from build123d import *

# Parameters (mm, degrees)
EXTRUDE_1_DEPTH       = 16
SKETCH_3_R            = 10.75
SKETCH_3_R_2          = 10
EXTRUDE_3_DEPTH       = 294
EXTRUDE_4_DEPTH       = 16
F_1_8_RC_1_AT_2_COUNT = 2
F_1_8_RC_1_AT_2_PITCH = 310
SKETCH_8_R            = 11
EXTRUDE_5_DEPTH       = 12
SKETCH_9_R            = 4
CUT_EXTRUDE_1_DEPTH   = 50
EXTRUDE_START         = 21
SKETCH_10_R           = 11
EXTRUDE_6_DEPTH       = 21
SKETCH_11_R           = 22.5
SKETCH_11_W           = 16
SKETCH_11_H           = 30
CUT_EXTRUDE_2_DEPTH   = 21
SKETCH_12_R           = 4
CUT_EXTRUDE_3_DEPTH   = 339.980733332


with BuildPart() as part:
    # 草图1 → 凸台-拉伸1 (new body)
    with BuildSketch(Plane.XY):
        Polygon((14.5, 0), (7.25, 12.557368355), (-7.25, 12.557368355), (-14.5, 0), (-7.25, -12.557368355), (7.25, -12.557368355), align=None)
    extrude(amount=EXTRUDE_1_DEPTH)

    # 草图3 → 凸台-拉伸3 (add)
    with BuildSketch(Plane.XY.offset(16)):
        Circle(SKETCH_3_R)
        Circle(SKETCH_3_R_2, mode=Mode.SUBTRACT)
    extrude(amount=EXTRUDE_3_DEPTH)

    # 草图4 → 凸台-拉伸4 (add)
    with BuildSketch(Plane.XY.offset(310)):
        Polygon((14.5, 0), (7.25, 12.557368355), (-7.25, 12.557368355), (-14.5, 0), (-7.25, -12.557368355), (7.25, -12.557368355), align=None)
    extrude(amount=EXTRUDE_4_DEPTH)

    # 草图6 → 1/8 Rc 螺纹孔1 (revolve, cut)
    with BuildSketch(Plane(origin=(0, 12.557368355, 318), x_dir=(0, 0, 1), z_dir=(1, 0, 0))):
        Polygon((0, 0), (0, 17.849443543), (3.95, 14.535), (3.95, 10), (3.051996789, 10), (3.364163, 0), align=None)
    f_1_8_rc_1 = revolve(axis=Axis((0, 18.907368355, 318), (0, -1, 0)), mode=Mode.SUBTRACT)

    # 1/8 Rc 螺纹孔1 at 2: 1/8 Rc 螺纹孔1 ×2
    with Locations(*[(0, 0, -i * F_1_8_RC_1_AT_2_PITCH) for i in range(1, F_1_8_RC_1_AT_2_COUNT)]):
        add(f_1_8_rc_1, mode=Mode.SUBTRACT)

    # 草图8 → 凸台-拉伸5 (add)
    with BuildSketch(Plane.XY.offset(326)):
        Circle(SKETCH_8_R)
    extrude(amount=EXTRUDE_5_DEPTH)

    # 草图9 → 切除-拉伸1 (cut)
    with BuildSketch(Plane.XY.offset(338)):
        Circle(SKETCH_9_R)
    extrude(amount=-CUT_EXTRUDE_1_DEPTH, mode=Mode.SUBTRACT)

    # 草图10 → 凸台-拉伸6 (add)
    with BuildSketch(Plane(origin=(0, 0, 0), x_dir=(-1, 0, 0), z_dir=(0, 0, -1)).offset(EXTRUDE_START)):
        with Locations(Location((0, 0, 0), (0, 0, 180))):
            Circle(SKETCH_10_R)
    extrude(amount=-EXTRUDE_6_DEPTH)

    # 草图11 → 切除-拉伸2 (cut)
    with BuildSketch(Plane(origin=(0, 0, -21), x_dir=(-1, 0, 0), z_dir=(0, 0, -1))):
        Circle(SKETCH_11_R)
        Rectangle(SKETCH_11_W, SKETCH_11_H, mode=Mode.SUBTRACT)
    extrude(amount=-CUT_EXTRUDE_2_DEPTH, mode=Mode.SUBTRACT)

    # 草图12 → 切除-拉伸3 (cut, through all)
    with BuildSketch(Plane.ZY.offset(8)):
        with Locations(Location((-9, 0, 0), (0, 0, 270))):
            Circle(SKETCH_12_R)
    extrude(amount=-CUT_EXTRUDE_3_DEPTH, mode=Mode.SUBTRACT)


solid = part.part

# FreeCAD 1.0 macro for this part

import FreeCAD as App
import Part
import Sketcher

V = App.Vector
Q = App.Units.Quantity

doc = App.newDocument("Part")
body = doc.addObject("PartDesign::Body", "Body")

# Sketch on XY plane
sketch1 = body.newObject("Sketcher::SketchObject", "Sketch")
sketch1.AttachmentSupport = (doc.getObject("XY_Plane"), [""])
sketch1.MapMode = "FlatFace"
sketch1.addGeometry([
    Part.LineSegment(V(14.5, 0, 0), V(7.25, 12.557368, 0)),  # 0
    Part.LineSegment(V(7.25, 12.557368, 0), V(-7.25, 12.557368, 0)),  # 1
    Part.LineSegment(V(-7.25, 12.557368, 0), V(-14.5, 0, 0)),  # 2
    Part.LineSegment(V(-14.5, 0, 0), V(-7.25, -12.557368, 0)),  # 3
    Part.LineSegment(V(-7.25, -12.557368, 0), V(7.25, -12.557368, 0)),  # 4
    Part.LineSegment(V(7.25, -12.557368, 0), V(14.5, 0, 0)),  # 5
], False)
sketch1.addConstraint([
    Sketcher.Constraint("Coincident", 0, 2, 1, 1),
    Sketcher.Constraint("Coincident", 1, 2, 2, 1),
    Sketcher.Constraint("Coincident", 2, 2, 3, 1),
    Sketcher.Constraint("Coincident", 3, 2, 4, 1),
    Sketcher.Constraint("Coincident", 4, 2, 5, 1),
    Sketcher.Constraint("Coincident", 5, 2, 0, 1),
    Sketcher.Constraint("Horizontal", 1),
    Sketcher.Constraint("Horizontal", 4),
    Sketcher.Constraint("Symmetric", 0, 2, 3, 2, -1, 1),
    Sketcher.Constraint("Symmetric", 2, 2, 5, 2, -1, 1),
    Sketcher.Constraint("PointOnObject", 2, 2, -1),
    Sketcher.Constraint("Parallel", 2, 5),
    Sketcher.Constraint("Vertical", 1, 2, 3, 2),
    Sketcher.Constraint("Angle", 0, Q("120 deg")),
    Sketcher.Constraint("DistanceX", 1, 2, 1, 1, 14.5),
    Sketcher.Constraint("DistanceX", 2, 2, 5, 2, 29.0),
])
pad1 = body.newObject("PartDesign::Pad", "Pad")
pad1.Profile = sketch1
pad1.Length = 16

# Sketch on XY plane
sketch2 = body.newObject("Sketcher::SketchObject", "Sketch001")
sketch2.AttachmentSupport = (doc.getObject("XY_Plane"), [""])
sketch2.MapMode = "FlatFace"
sketch2.AttachmentOffset = App.Placement(V(0, 0, 16), App.Rotation())
sketch2.addGeometry([
    Part.Circle(V(0, 0, 0), V(0, 0, 1), 10.75),
    Part.Circle(V(0, 0, 0), V(0, 0, 1), 10),
], False)
sketch2.addConstraint([
    Sketcher.Constraint("Coincident", 0, 3, -1, 1),
    Sketcher.Constraint("Coincident", 1, 3, -1, 1),
    Sketcher.Constraint("Diameter", 1, 20.0),
    Sketcher.Constraint("Diameter", 0, 21.5),
])
pad2 = body.newObject("PartDesign::Pad", "Pad001")
pad2.Profile = sketch2
pad2.Length = 294

# Sketch on XY plane
sketch3 = body.newObject("Sketcher::SketchObject", "Sketch002")
sketch3.AttachmentSupport = (doc.getObject("XY_Plane"), [""])
sketch3.MapMode = "FlatFace"
sketch3.AttachmentOffset = App.Placement(V(0, 0, 310), App.Rotation())
sketch3.addGeometry([
    Part.LineSegment(V(14.5, 0, 0), V(7.25, 12.557368, 0)),  # 0
    Part.LineSegment(V(7.25, 12.557368, 0), V(-7.25, 12.557368, 0)),  # 1
    Part.LineSegment(V(-7.25, 12.557368, 0), V(-14.5, 0, 0)),  # 2
    Part.LineSegment(V(-14.5, 0, 0), V(-7.25, -12.557368, 0)),  # 3
    Part.LineSegment(V(-7.25, -12.557368, 0), V(7.25, -12.557368, 0)),  # 4
    Part.LineSegment(V(7.25, -12.557368, 0), V(14.5, 0, 0)),  # 5
], False)
sketch3.addConstraint([
    Sketcher.Constraint("Coincident", 0, 2, 1, 1),
    Sketcher.Constraint("Coincident", 1, 2, 2, 1),
    Sketcher.Constraint("Coincident", 2, 2, 3, 1),
    Sketcher.Constraint("Coincident", 3, 2, 4, 1),
    Sketcher.Constraint("Coincident", 4, 2, 5, 1),
    Sketcher.Constraint("Coincident", 5, 2, 0, 1),
    Sketcher.Constraint("Horizontal", 1),
    Sketcher.Constraint("Horizontal", 4),
    Sketcher.Constraint("Symmetric", 0, 2, 3, 2, -1, 1),
    Sketcher.Constraint("Symmetric", 2, 2, 5, 2, -1, 1),
    Sketcher.Constraint("PointOnObject", 2, 2, -1),
    Sketcher.Constraint("Parallel", 2, 5),
    Sketcher.Constraint("Vertical", 1, 2, 3, 2),
    Sketcher.Constraint("Angle", 0, Q("120 deg")),
    Sketcher.Constraint("DistanceX", 1, 2, 1, 1, 14.5),
    Sketcher.Constraint("DistanceX", 2, 2, 5, 2, 29.0),
])
pad3 = body.newObject("PartDesign::Pad", "Pad002")
pad3.Profile = sketch3
pad3.Length = 16

# Sketch on YZ plane
sketch4 = body.newObject("Sketcher::SketchObject", "Sketch003")
sketch4.AttachmentSupport = (doc.getObject("YZ_Plane"), [""])
sketch4.MapMode = "FlatFace"
sketch4.addGeometry([
    Part.LineSegment(V(-5.292075, 318, 0), V(12.557368, 318, 0)),  # 0
    Part.LineSegment(V(12.557368, 318, 0), V(12.557368, 321.364163, 0)),  # 1
    Part.LineSegment(V(12.557368, 321.364163, 0), V(2.557368, 321.051997, 0)),  # 2
    Part.LineSegment(V(2.557368, 321.051997, 0), V(2.557368, 321.95, 0)),  # 3
    Part.LineSegment(V(2.557368, 321.95, 0), V(-1.977632, 321.95, 0)),  # 4
    Part.LineSegment(V(-1.977632, 321.95, 0), V(-5.292075, 318, 0)),  # 5
], False)
sketch4.addGeometry(Part.LineSegment(V(12.557368, 318, 0), V(-5.292075, 318, 0)), True)  # axis
sketch4.addConstraint([
    Sketcher.Constraint("Coincident", 0, 2, 1, 1),
    Sketcher.Constraint("Coincident", 1, 2, 2, 1),
    Sketcher.Constraint("Coincident", 2, 2, 3, 1),
    Sketcher.Constraint("Coincident", 3, 2, 4, 1),
    Sketcher.Constraint("Coincident", 4, 2, 5, 1),
    Sketcher.Constraint("Coincident", 5, 2, 0, 1),
    Sketcher.Constraint("Horizontal", 0),
    Sketcher.Constraint("Vertical", 1),
    Sketcher.Constraint("Vertical", 3),
    Sketcher.Constraint("Horizontal", 4),
    Sketcher.Constraint("Horizontal", 6),
    Sketcher.Constraint("Coincident", 6, 1, 0, 2),
    Sketcher.Constraint("Equal", 0, 6),
    Sketcher.Constraint("Angle", 5, Q("-130 deg")),
    Sketcher.Constraint("DistanceY", -1, 1, 0, 2, 318.0),
    Sketcher.Constraint("DistanceX", 2, 2, 1, 2, 10.0),
    Sketcher.Constraint("DistanceX", 4, 2, 4, 1, 4.535),
    Sketcher.Constraint("DistanceY", -1, 1, 3, 2, 321.95),
    Sketcher.Constraint("Distance", 2, 10.004871),
    Sketcher.Constraint("DistanceY", 1, 1, 1, 2, 3.364163),
    Sketcher.Constraint("DistanceX", -1, 1, 0, 2, 12.557368),
])
groove = body.newObject("PartDesign::Groove", "Groove")
groove.Profile = sketch4
groove.ReferenceAxis = (sketch4, ["Axis0"])
groove.Angle = 360
doc.recompute()

linearpattern = body.newObject("PartDesign::LinearPattern", "LinearPattern")
linearpattern.Originals = [groove]
linearpattern.Direction = (doc.getObject("Z_Axis"), [""])
linearpattern.Mode = "offset"
linearpattern.Offset = 310
linearpattern.Occurrences = 2
linearpattern.Reversed = True
body.Tip = linearpattern

# Sketch on XY plane
sketch5 = body.newObject("Sketcher::SketchObject", "Sketch004")
sketch5.AttachmentSupport = (doc.getObject("XY_Plane"), [""])
sketch5.MapMode = "FlatFace"
sketch5.AttachmentOffset = App.Placement(V(0, 0, 326), App.Rotation())
sketch5.addGeometry(Part.Circle(V(0, 0, 0), V(0, 0, 1), 11), False)
sketch5.addConstraint([
    Sketcher.Constraint("Coincident", 0, 3, -1, 1),
    Sketcher.Constraint("Diameter", 0, 22.0),
])
pad4 = body.newObject("PartDesign::Pad", "Pad003")
pad4.Profile = sketch5
pad4.Length = 12

# Sketch on XY plane
sketch6 = body.newObject("Sketcher::SketchObject", "Sketch005")
sketch6.AttachmentSupport = (doc.getObject("XY_Plane"), [""])
sketch6.MapMode = "FlatFace"
sketch6.AttachmentOffset = App.Placement(V(0, 0, 338), App.Rotation())
sketch6.addGeometry(Part.Circle(V(0, 0, 0), V(0, 0, 1), 4), False)
sketch6.addConstraint([
    Sketcher.Constraint("Coincident", 0, 3, -1, 1),
    Sketcher.Constraint("Diameter", 0, 8.0),
])
pocket1 = body.newObject("PartDesign::Pocket", "Pocket")
pocket1.Profile = sketch6
pocket1.Length = 50

# Sketch on XY plane
sketch7 = body.newObject("Sketcher::SketchObject", "Sketch006")
sketch7.AttachmentSupport = (doc.getObject("XY_Plane"), [""])
sketch7.MapMode = "FlatFace"
sketch7.AttachmentOffset = App.Placement(V(0, 0, -21), App.Rotation())
sketch7.addGeometry(Part.Circle(V(0, 0, 0), V(0, 0, 1), 11), False)
sketch7.addConstraint([
    Sketcher.Constraint("Coincident", 0, 3, -1, 1),
    Sketcher.Constraint("Diameter", 0, 22.0),
])
pad5 = body.newObject("PartDesign::Pad", "Pad004")
pad5.Profile = sketch7
pad5.Length = 21

# Sketch on XY plane
sketch8 = body.newObject("Sketcher::SketchObject", "Sketch007")
sketch8.AttachmentSupport = (doc.getObject("XY_Plane"), [""])
sketch8.MapMode = "FlatFace"
sketch8.AttachmentOffset = App.Placement(V(0, 0, -21), App.Rotation())
sketch8.addGeometry([
    Part.Circle(V(0, 0, 0), V(0, 0, 1), 22.5),  # 0
    Part.LineSegment(V(-8, -15, 0), V(8, -15, 0)),  # 1
    Part.LineSegment(V(8, -15, 0), V(8, 15, 0)),  # 2
    Part.LineSegment(V(8, 15, 0), V(-8, 15, 0)),  # 3
    Part.LineSegment(V(-8, 15, 0), V(-8, -15, 0)),  # 4
], False)
sketch8.addConstraint([
    Sketcher.Constraint("Coincident", 1, 2, 2, 1),
    Sketcher.Constraint("Coincident", 2, 2, 3, 1),
    Sketcher.Constraint("Coincident", 3, 2, 4, 1),
    Sketcher.Constraint("Coincident", 4, 2, 1, 1),
    Sketcher.Constraint("Horizontal", 1),
    Sketcher.Constraint("Vertical", 2),
    Sketcher.Constraint("Horizontal", 3),
    Sketcher.Constraint("Vertical", 4),
    Sketcher.Constraint("Coincident", 0, 3, -1, 1),
    Sketcher.Constraint("Symmetric", 1, 2, 3, 2, -1, 1),
    Sketcher.Constraint("Diameter", 0, 45.0),
    Sketcher.Constraint("DistanceX", 1, 1, 1, 2, 16.0),
    Sketcher.Constraint("DistanceY", 2, 1, 2, 2, 30.0),
])
pocket2 = body.newObject("PartDesign::Pocket", "Pocket001")
pocket2.Profile = sketch8
pocket2.Length = 21
pocket2.Reversed = True

# Sketch on YZ plane
sketch9 = body.newObject("Sketcher::SketchObject", "Sketch008")
sketch9.AttachmentSupport = (doc.getObject("YZ_Plane"), [""])
sketch9.MapMode = "FlatFace"
sketch9.AttachmentOffset = App.Placement(V(0, 0, -8), App.Rotation())
sketch9.addGeometry(Part.Circle(V(0, -9, 0), V(0, 0, 1), 4), False)
sketch9.addConstraint([
    Sketcher.Constraint("PointOnObject", 0, 3, -2),
    Sketcher.Constraint("Diameter", 0, 8.0),
    Sketcher.Constraint("DistanceY", 0, 3, -1, 1, 9.0),
])
pocket3 = body.newObject("PartDesign::Pocket", "Pocket002")
pocket3.Profile = sketch9
pocket3.Type = "ThroughAll"
pocket3.Reversed = True

doc.recompute()
